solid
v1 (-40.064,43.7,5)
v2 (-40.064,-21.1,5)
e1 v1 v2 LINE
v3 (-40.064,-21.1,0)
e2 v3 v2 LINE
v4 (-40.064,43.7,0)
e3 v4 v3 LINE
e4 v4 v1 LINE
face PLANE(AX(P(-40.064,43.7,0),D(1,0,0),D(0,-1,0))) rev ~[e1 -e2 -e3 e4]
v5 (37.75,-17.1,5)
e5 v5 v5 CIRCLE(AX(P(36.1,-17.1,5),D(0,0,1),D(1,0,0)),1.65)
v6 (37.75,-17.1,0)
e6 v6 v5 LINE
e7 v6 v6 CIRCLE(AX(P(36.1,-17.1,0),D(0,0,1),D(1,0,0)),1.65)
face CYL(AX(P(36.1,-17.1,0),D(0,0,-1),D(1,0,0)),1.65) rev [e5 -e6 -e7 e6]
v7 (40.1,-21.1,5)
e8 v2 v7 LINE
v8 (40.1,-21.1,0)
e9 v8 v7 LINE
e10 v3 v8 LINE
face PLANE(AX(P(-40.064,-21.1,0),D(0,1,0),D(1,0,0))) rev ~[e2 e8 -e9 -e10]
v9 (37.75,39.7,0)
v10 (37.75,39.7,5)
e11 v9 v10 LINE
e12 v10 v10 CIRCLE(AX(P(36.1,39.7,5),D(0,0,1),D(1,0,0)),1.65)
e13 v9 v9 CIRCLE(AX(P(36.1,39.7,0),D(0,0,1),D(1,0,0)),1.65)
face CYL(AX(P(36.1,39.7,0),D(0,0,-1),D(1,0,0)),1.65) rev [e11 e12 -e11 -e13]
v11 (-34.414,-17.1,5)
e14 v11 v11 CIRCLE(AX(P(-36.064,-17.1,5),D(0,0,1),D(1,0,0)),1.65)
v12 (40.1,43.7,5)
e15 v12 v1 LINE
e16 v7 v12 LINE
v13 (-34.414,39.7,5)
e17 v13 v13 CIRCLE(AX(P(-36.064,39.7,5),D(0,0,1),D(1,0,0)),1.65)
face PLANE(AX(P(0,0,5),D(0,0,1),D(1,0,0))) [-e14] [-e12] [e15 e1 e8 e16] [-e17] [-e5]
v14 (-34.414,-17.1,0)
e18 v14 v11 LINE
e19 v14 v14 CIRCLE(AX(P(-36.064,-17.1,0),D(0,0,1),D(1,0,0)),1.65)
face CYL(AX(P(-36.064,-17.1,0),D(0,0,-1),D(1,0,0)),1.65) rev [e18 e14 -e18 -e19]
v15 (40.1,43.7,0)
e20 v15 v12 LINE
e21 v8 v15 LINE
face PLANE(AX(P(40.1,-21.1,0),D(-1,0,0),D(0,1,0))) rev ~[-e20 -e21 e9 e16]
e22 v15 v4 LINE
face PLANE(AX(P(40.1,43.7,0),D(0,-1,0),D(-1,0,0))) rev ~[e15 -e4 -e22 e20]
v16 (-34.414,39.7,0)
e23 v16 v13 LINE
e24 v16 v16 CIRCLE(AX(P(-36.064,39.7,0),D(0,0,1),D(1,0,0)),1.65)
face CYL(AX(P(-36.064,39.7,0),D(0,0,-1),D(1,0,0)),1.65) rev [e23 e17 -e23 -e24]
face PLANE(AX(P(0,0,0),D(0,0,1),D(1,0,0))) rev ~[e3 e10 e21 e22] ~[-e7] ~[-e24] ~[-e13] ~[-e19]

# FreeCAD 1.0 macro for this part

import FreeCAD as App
import Part
import Sketcher
Q = App.Units.Quantity

doc = App.newDocument("Part")
body = doc.addObject("PartDesign::Body", "Body")

# Sketch on XY plane
sketch1 = body.newObject("Sketcher::SketchObject", "Sketch")
sketch1.AttachmentSupport = (doc.getObject("XY_Plane"), [""])
sketch1.MapMode = "FlatFace"
sketch1.addGeometry([
    Part.LineSegment(App.Vector(40.1, 43.7, 0), App.Vector(-40.1, 43.7, 0)),  # 0
    Part.LineSegment(App.Vector(-40.1, 43.7, 0), App.Vector(-40.1, -21.1, 0)),  # 1
    Part.LineSegment(App.Vector(-40.1, -21.1, 0), App.Vector(40.1, -21.1, 0)),  # 2
    Part.LineSegment(App.Vector(40.1, -21.1, 0), App.Vector(40.1, 43.7, 0)),  # 3
    Part.Circle(App.Vector(-36.1, -17.1, 0), App.Vector(0, 0, 1), 1.6),  # 4
    Part.Circle(App.Vector(36.1, -17.1, 0), App.Vector(0, 0, 1), 1.6),  # 5
    Part.Circle(App.Vector(-36.1, 39.7, 0), App.Vector(0, 0, 1), 1.6),  # 6
    Part.Circle(App.Vector(36.1, 39.7, 0), App.Vector(0, 0, 1), 1.6),  # 7
], False)
sketch1.addConstraint([
    Sketcher.Constraint("Coincident", 0, 2, 1, 1),
    Sketcher.Constraint("Coincident", 1, 2, 2, 1),
    Sketcher.Constraint("Coincident", 2, 2, 3, 1),
    Sketcher.Constraint("Coincident", 3, 2, 0, 1),
    Sketcher.Constraint("Horizontal", 0),
    Sketcher.Constraint("Vertical", 1),
    Sketcher.Constraint("Horizontal", 2),
    Sketcher.Constraint("Vertical", 3),
    Sketcher.Constraint("Equal", 4, 5),
    Sketcher.Constraint("Equal", 5, 6),
    Sketcher.Constraint("Equal", 6, 7),
    Sketcher.Constraint("Horizontal", 4, 3, 5, 3),
    Sketcher.Constraint("Horizontal", 6, 3, 7, 3),
    Sketcher.Constraint("Vertical", 4, 3, 6, 3),
    Sketcher.Constraint("Vertical", 5, 3, 7, 3),
    Sketcher.Constraint("Diameter", 4, Q("3.3 mm")),
    Sketcher.Constraint("DistanceY", 1, 2, 1, 1, Q("64.8 mm")),
    Sketcher.Constraint("DistanceX", 0, 2, 6, 3, Q("4 mm")),
    Sketcher.Constraint("DistanceY", 6, 3, 0, 2, Q("4 mm")),
    Sketcher.Constraint("DistanceY", 1, 2, 4, 3, Q("4 mm")),
    Sketcher.Constraint("DistanceX", 5, 3, 2, 2, Q("4 mm")),
    Sketcher.Constraint("DistanceY", 4, 3, -1, 1, Q("17.1 mm")),
    Sketcher.Constraint("DistanceX", -1, 1, 5, 3, Q("36.1 mm")),
    Sketcher.Constraint("DistanceX", 0, 2, 0, 1, Q("80.164 mm")),
])
pad1 = body.newObject("PartDesign::Pad", "Pad")
pad1.Profile = sketch1
pad1.Length = 5

doc.recompute()
